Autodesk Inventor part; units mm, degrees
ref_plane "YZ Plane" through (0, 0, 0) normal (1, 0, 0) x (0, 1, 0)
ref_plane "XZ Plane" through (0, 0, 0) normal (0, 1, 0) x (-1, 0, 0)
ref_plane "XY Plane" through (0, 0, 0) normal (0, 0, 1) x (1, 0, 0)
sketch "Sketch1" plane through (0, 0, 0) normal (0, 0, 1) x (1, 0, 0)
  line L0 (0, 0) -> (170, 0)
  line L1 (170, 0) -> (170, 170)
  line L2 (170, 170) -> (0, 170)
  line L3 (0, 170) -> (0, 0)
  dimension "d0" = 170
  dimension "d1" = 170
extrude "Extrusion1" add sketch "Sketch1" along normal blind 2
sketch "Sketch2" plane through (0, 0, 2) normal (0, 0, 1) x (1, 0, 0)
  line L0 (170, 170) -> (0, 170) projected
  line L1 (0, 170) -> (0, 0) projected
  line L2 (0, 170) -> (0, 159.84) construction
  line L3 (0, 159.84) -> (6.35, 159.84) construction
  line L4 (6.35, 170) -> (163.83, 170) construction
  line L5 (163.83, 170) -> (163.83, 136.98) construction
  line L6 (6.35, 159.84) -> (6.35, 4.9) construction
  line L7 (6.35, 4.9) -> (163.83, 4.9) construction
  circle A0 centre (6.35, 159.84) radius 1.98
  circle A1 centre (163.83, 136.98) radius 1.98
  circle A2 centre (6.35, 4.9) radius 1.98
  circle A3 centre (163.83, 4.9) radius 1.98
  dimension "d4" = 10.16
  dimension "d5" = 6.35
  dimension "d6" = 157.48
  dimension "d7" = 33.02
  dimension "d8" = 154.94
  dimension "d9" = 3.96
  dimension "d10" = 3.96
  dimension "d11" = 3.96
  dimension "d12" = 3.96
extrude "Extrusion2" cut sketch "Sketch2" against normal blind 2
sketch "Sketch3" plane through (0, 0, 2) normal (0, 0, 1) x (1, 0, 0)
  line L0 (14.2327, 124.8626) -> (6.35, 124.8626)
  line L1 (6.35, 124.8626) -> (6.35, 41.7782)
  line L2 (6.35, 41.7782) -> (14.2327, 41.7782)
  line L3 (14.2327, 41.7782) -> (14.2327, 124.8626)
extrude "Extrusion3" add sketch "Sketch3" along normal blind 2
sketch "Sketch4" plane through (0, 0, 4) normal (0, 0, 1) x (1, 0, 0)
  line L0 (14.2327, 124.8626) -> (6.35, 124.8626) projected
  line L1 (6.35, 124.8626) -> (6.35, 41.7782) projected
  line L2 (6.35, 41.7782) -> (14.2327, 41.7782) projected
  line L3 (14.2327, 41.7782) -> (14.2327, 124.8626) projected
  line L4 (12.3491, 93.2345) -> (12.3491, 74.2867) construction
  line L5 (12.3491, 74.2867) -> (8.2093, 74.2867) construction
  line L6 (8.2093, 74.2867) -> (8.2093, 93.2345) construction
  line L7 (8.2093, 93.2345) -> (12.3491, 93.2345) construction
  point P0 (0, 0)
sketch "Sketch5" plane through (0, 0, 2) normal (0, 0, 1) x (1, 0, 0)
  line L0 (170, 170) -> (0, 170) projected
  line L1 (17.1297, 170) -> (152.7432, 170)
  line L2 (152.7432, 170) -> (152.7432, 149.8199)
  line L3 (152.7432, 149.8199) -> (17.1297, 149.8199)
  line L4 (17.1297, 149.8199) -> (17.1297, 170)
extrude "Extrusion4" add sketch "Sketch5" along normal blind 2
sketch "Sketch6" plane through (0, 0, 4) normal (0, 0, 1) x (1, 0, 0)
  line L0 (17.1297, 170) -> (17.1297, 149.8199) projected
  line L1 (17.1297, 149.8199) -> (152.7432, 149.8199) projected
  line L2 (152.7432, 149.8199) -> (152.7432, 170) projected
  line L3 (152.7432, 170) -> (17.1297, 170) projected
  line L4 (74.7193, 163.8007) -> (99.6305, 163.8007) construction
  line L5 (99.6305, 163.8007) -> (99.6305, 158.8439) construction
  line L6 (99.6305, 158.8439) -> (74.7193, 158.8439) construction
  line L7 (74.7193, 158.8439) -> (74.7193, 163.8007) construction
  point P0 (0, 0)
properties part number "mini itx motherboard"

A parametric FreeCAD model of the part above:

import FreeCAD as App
import Part
import Sketcher
Q = App.Units.Quantity

doc = App.newDocument("Part")
params = doc.addObject("Spreadsheet::Sheet", "Params")
for row, (alias, value) in enumerate([
    ("sketch1_width", "170 mm"),
    ("pad1_length", "2 mm"),
    ("sketch2_diameter", "3.96 mm"),
    ("pocket1_length", "2 mm"),
    ("pad2_length", "2 mm"),
    ("sketch4_height", "20.18 mm"),
    ("pad3_length", "2 mm"),
], start=1):
    params.set(f"A{row}", alias)
    params.set(f"B{row}", "=" + value)
    params.setAlias(f"B{row}", alias)

body = doc.addObject("PartDesign::Body", "Body")

# Sketch on XY plane
sketch1 = body.newObject("Sketcher::SketchObject", "Sketch")
sketch1.AttachmentSupport = (doc.getObject("XY_Plane"), [""])
sketch1.MapMode = "FlatFace"
sketch1.addGeometry(Part.LineSegment(App.Vector(0, 170, 0), App.Vector(0, 0, 0)), False)
sketch1.addGeometry(Part.LineSegment(App.Vector(0, 0, 0), App.Vector(170, 0, 0)), False)
sketch1.addGeometry(Part.LineSegment(App.Vector(170, 0, 0), App.Vector(170, 170, 0)), False)
sketch1.addGeometry(Part.LineSegment(App.Vector(170, 170, 0), App.Vector(0, 170, 0)), False)
sketch1.addConstraint(Sketcher.Constraint("Coincident", 0, 2, 1, 1))
sketch1.addConstraint(Sketcher.Constraint("Coincident", 1, 2, 2, 1))
sketch1.addConstraint(Sketcher.Constraint("Coincident", 2, 2, 3, 1))
sketch1.addConstraint(Sketcher.Constraint("Coincident", 3, 2, 0, 1))
sketch1.addConstraint(Sketcher.Constraint("Vertical", 0))
sketch1.addConstraint(Sketcher.Constraint("Horizontal", 1))
sketch1.addConstraint(Sketcher.Constraint("Vertical", 2))
sketch1.addConstraint(Sketcher.Constraint("Horizontal", 3))
sketch1.addConstraint(Sketcher.Constraint("Coincident", 0, 2, -1, 1))
sketch1.addConstraint(Sketcher.Constraint("Equal", 3, 0))
sketch1.addConstraint(Sketcher.Constraint("DistanceX", 1, 1, 1, 2, Q("170 mm")))
sketch1.setExpression("Constraints[10]", "Params.sketch1_width")
pad1 = body.newObject("PartDesign::Pad", "Pad")
pad1.Profile = sketch1
pad1.setExpression("Length", "Params.pad1_length")

# Sketch on XY plane
sketch2 = body.newObject("Sketcher::SketchObject", "Sketch001")
sketch2.AttachmentSupport = (doc.getObject("XY_Plane"), [""])
sketch2.MapMode = "FlatFace"
sketch2.AttachmentOffset = App.Placement(App.Vector(0, 0, 2), App.Rotation())
sketch2.addGeometry(Part.Circle(App.Vector(6.3, 159.8, 0), App.Vector(0, 0, 1), 2), False)
sketch2.addGeometry(Part.Circle(App.Vector(163.8, 137, 0), App.Vector(0, 0, 1), 2), False)
sketch2.addGeometry(Part.Circle(App.Vector(6.3, 4.9, 0), App.Vector(0, 0, 1), 2), False)
sketch2.addGeometry(Part.Circle(App.Vector(163.8, 4.9, 0), App.Vector(0, 0, 1), 2), False)
sketch2.addConstraint(Sketcher.Constraint("Equal", 0, 1))
sketch2.addConstraint(Sketcher.Constraint("Equal", 1, 2))
sketch2.addConstraint(Sketcher.Constraint("Equal", 2, 3))
sketch2.addConstraint(Sketcher.Constraint("Horizontal", 2, 3, 3, 3))
sketch2.addConstraint(Sketcher.Constraint("Vertical", 0, 3, 2, 3))
sketch2.addConstraint(Sketcher.Constraint("Vertical", 1, 3, 3, 3))
sketch2.addConstraint(Sketcher.Constraint("Diameter", 0, Q("3.96 mm")))
sketch2.addConstraint(Sketcher.Constraint("DistanceX", -1, 1, 0, 3, Q("6.35 mm")))
sketch2.addConstraint(Sketcher.Constraint("DistanceX", 0, 3, 1, 3, Q("157.48 mm")))
sketch2.addConstraint(Sketcher.Constraint("DistanceY", 2, 3, 0, 3, Q("154.94 mm")))
sketch2.addConstraint(Sketcher.Constraint("DistanceY", -1, 1, 2, 3, Q("4.9 mm")))
sketch2.addConstraint(Sketcher.Constraint("DistanceY", -1, 1, 1, 3, Q("136.98 mm")))
sketch2.setExpression("Constraints[6]", "Params.sketch2_diameter")
pocket1 = body.newObject("PartDesign::Pocket", "Pocket")
pocket1.Profile = sketch2
pocket1.setExpression("Length", "Params.pocket1_length")

# Sketch on XY plane
sketch3 = body.newObject("Sketcher::SketchObject", "Sketch002")
sketch3.AttachmentSupport = (doc.getObject("XY_Plane"), [""])
sketch3.MapMode = "FlatFace"
sketch3.AttachmentOffset = App.Placement(App.Vector(0, 0, 2), App.Rotation())
sketch3.addGeometry(Part.LineSegment(App.Vector(14, 42, 0), App.Vector(14, 125, 0)), False)
sketch3.addGeometry(Part.LineSegment(App.Vector(14, 125, 0), App.Vector(6, 125, 0)), False)
sketch3.addGeometry(Part.LineSegment(App.Vector(6, 125, 0), App.Vector(6, 42, 0)), False)
sketch3.addGeometry(Part.LineSegment(App.Vector(6, 42, 0), App.Vector(14, 42, 0)), False)
sketch3.addConstraint(Sketcher.Constraint("Coincident", 0, 2, 1, 1))
sketch3.addConstraint(Sketcher.Constraint("Coincident", 1, 2, 2, 1))
sketch3.addConstraint(Sketcher.Constraint("Coincident", 2, 2, 3, 1))
sketch3.addConstraint(Sketcher.Constraint("Coincident", 3, 2, 0, 1))
sketch3.addConstraint(Sketcher.Constraint("Vertical", 0))
sketch3.addConstraint(Sketcher.Constraint("Horizontal", 1))
sketch3.addConstraint(Sketcher.Constraint("Vertical", 2))
sketch3.addConstraint(Sketcher.Constraint("Horizontal", 3))
sketch3.addConstraint(Sketcher.Constraint("DistanceX", -1, 1, 1, 2, Q("6.35 mm")))
sketch3.addConstraint(Sketcher.Constraint("DistanceX", 1, 2, 1, 1, Q("7.8827 mm")))
sketch3.addConstraint(Sketcher.Constraint("DistanceY", 0, 1, 0, 2, Q("83.0844 mm")))
sketch3.addConstraint(Sketcher.Constraint("DistanceY", -1, 1, 0, 2, Q("124.8626 mm")))
pad2 = body.newObject("PartDesign::Pad", "Pad001")
pad2.Profile = sketch3
pad2.setExpression("Length", "Params.pad2_length")

# Sketch on XY plane
sketch4 = body.newObject("Sketcher::SketchObject", "Sketch003")
sketch4.AttachmentSupport = (doc.getObject("XY_Plane"), [""])
sketch4.MapMode = "FlatFace"
sketch4.AttachmentOffset = App.Placement(App.Vector(0, 0, 2), App.Rotation())
sketch4.addGeometry(Part.LineSegment(App.Vector(153, 150, 0), App.Vector(153, 170, 0)), False)
sketch4.addGeometry(Part.LineSegment(App.Vector(153, 170, 0), App.Vector(17, 170, 0)), False)
sketch4.addGeometry(Part.LineSegment(App.Vector(17, 170, 0), App.Vector(17, 150, 0)), False)
sketch4.addGeometry(Part.LineSegment(App.Vector(17, 150, 0), App.Vector(153, 150, 0)), False)
sketch4.addConstraint(Sketcher.Constraint("Coincident", 0, 2, 1, 1))
sketch4.addConstraint(Sketcher.Constraint("Coincident", 1, 2, 2, 1))
sketch4.addConstraint(Sketcher.Constraint("Coincident", 2, 2, 3, 1))
sketch4.addConstraint(Sketcher.Constraint("Coincident", 3, 2, 0, 1))
sketch4.addConstraint(Sketcher.Constraint("Vertical", 0))
sketch4.addConstraint(Sketcher.Constraint("Horizontal", 1))
sketch4.addConstraint(Sketcher.Constraint("Vertical", 2))
sketch4.addConstraint(Sketcher.Constraint("Horizontal", 3))
sketch4.addConstraint(Sketcher.Constraint("DistanceY", -1, 1, 0, 2, Q("170 mm")))
sketch4.addConstraint(Sketcher.Constraint("DistanceY", 0, 1, 0, 2, Q("20.18 mm")))
sketch4.addConstraint(Sketcher.Constraint("DistanceX", 1, 2, 1, 1, Q("135.6135 mm")))
sketch4.addConstraint(Sketcher.Constraint("DistanceX", -1, 1, 0, 2, Q("152.7432 mm")))
sketch4.setExpression("Constraints[9]", "Params.sketch4_height")
pad3 = body.newObject("PartDesign::Pad", "Pad002")
pad3.Profile = sketch4
pad3.setExpression("Length", "Params.pad3_length")

doc.recompute()
